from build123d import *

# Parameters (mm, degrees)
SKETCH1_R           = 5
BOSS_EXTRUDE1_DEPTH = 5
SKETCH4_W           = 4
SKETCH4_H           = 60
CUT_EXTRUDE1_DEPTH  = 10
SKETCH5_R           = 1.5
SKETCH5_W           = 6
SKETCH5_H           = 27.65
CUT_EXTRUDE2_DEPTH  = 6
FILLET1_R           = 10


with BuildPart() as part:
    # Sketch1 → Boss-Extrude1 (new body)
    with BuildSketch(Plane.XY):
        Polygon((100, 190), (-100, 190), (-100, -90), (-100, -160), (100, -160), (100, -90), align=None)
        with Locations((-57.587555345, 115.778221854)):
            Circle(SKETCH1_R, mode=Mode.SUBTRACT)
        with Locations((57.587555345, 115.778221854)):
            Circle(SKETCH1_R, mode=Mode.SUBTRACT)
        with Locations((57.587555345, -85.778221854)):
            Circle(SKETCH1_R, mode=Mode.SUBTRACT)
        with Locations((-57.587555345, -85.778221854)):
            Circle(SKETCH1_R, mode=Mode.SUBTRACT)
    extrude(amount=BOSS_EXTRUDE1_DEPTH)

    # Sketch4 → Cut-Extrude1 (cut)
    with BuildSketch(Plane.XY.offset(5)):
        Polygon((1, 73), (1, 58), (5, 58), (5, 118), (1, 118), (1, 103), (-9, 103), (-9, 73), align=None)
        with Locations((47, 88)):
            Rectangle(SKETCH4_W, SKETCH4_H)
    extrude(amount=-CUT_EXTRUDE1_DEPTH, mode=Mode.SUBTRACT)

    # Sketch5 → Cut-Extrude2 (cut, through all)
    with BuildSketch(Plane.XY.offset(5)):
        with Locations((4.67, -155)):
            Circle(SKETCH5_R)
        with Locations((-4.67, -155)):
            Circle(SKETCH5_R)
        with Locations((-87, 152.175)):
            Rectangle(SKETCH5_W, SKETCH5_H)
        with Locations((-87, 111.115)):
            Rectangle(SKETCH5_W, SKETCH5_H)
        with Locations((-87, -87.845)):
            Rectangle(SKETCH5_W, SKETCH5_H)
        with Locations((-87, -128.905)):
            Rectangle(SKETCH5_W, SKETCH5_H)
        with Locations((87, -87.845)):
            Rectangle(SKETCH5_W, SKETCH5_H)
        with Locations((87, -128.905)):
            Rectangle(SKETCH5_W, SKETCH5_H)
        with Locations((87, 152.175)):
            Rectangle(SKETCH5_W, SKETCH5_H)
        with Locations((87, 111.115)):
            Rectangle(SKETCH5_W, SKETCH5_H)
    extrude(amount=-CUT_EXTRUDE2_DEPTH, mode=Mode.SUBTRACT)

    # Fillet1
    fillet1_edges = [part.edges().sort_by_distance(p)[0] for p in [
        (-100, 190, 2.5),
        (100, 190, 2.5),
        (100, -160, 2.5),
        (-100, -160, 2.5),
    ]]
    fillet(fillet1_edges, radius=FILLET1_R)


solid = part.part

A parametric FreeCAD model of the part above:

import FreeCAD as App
import Part
import Sketcher

V = App.Vector
Q = App.Units.Quantity


def edges_at(feature, points):
    """Names of the edges that pass closest to the given points."""
    edges = feature.Shape.Edges
    near = lambda p: min(range(len(edges)), key=lambda i: edges[i].distToShape(Part.Vertex(*p))[0])
    return sorted({f"Edge{near(p) + 1}" for p in points})

doc = App.newDocument("Part")
body = doc.addObject("PartDesign::Body", "Body")

sketch1 = doc.addObject("Sketcher::SketchObject", "Sketch")
body.addObject(sketch1)
sketch1.AttachmentSupport = (doc.XY_Plane, [""])
sketch1.MapMode = "FlatFace"
sketch1.addGeometry(Part.LineSegment(V(100, 190, 0), V(-100, 190, 0)), False)
sketch1.addGeometry(Part.LineSegment(V(-100, 190, 0), V(-100, -160, 0)), False)
sketch1.addGeometry(Part.LineSegment(V(-100, -160, 0), V(100, -160, 0)), False)
sketch1.addGeometry(Part.LineSegment(V(100, -160, 0), V(100, 190, 0)), False)
sketch1.addGeometry(Part.Circle(V(-57.587555, -85.778222, 0), V(0, 0, 1), 5), False)
sketch1.addGeometry(Part.Circle(V(57.587555, -85.778222, 0), V(0, 0, 1), 5), False)
sketch1.addGeometry(Part.Circle(V(-57.587555, 115.778222, 0), V(0, 0, 1), 5), False)
sketch1.addGeometry(Part.Circle(V(57.587555, 115.778222, 0), V(0, 0, 1), 5), False)
sketch1.addConstraint(Sketcher.Constraint("Coincident", 0, 2, 1, 1))
sketch1.addConstraint(Sketcher.Constraint("Coincident", 1, 2, 2, 1))
sketch1.addConstraint(Sketcher.Constraint("Coincident", 2, 2, 3, 1))
sketch1.addConstraint(Sketcher.Constraint("Coincident", 3, 2, 0, 1))
sketch1.addConstraint(Sketcher.Constraint("Horizontal", 0))
sketch1.addConstraint(Sketcher.Constraint("Vertical", 1))
sketch1.addConstraint(Sketcher.Constraint("Horizontal", 2))
sketch1.addConstraint(Sketcher.Constraint("Vertical", 3))
sketch1.addConstraint(Sketcher.Constraint("Equal", 4, 5))
sketch1.addConstraint(Sketcher.Constraint("Equal", 5, 6))
sketch1.addConstraint(Sketcher.Constraint("Equal", 6, 7))
sketch1.addConstraint(Sketcher.Constraint("Symmetric", 4, 3, 5, 3, -2))
sketch1.addConstraint(Sketcher.Constraint("Symmetric", 6, 3, 7, 3, -2))
sketch1.addConstraint(Sketcher.Constraint("Vertical", 4, 3, 6, 3))
sketch1.addConstraint(Sketcher.Constraint("Diameter", 4, Q("10 mm")))
sketch1.addConstraint(Sketcher.Constraint("DistanceX", 0, 2, 0, 1, Q("200 mm")))
sketch1.addConstraint(Sketcher.Constraint("DistanceY", 1, 2, 1, 1, Q("350 mm")))
sketch1.addConstraint(Sketcher.Constraint("DistanceX", 0, 2, -1, 1, Q("100 mm")))
sketch1.addConstraint(Sketcher.Constraint("DistanceY", -1, 1, 0, 2, Q("190 mm")))
sketch1.addConstraint(Sketcher.Constraint("DistanceY", 4, 3, -1, 1, Q("85.778222 mm")))
sketch1.addConstraint(Sketcher.Constraint("DistanceY", -1, 1, 6, 3, Q("115.778222 mm")))
sketch1.addConstraint(Sketcher.Constraint("DistanceX", 4, 3, 5, 3, Q("115.175111 mm")))
pad1 = doc.addObject("PartDesign::Pad", "Pad")
body.addObject(pad1)
pad1.Profile = sketch1
pad1.Length = 5

sketch2 = doc.addObject("Sketcher::SketchObject", "Sketch001")
body.addObject(sketch2)
sketch2.AttachmentSupport = (doc.XY_Plane, [""])
sketch2.MapMode = "FlatFace"
sketch2.AttachmentOffset = App.Placement(V(0, 0, 5), App.Rotation())
sketch2.addGeometry(Part.LineSegment(V(1, 73, 0), V(1, 58, 0)), False)
sketch2.addGeometry(Part.LineSegment(V(1, 58, 0), V(5, 58, 0)), False)
sketch2.addGeometry(Part.LineSegment(V(5, 58, 0), V(5, 118, 0)), False)
sketch2.addGeometry(Part.LineSegment(V(5, 118, 0), V(1, 118, 0)), False)
sketch2.addGeometry(Part.LineSegment(V(1, 118, 0), V(1, 103, 0)), False)
sketch2.addGeometry(Part.LineSegment(V(1, 103, 0), V(-9, 103, 0)), False)
sketch2.addGeometry(Part.LineSegment(V(-9, 103, 0), V(-9, 73, 0)), False)
sketch2.addGeometry(Part.LineSegment(V(-9, 73, 0), V(1, 73, 0)), False)
sketch2.addGeometry(Part.LineSegment(V(45, 118, 0), V(45, 58, 0)), False)
sketch2.addGeometry(Part.LineSegment(V(45, 58, 0), V(49, 58, 0)), False)
sketch2.addGeometry(Part.LineSegment(V(49, 58, 0), V(49, 118, 0)), False)
sketch2.addGeometry(Part.LineSegment(V(49, 118, 0), V(45, 118, 0)), False)
sketch2.addConstraint(Sketcher.Constraint("Coincident", 0, 2, 1, 1))
sketch2.addConstraint(Sketcher.Constraint("Coincident", 1, 2, 2, 1))
sketch2.addConstraint(Sketcher.Constraint("Coincident", 2, 2, 3, 1))
sketch2.addConstraint(Sketcher.Constraint("Coincident", 3, 2, 4, 1))
sketch2.addConstraint(Sketcher.Constraint("Coincident", 4, 2, 5, 1))
sketch2.addConstraint(Sketcher.Constraint("Coincident", 5, 2, 6, 1))
sketch2.addConstraint(Sketcher.Constraint("Coincident", 6, 2, 7, 1))
sketch2.addConstraint(Sketcher.Constraint("Coincident", 7, 2, 0, 1))
sketch2.addConstraint(Sketcher.Constraint("Coincident", 8, 2, 9, 1))
sketch2.addConstraint(Sketcher.Constraint("Coincident", 9, 2, 10, 1))
sketch2.addConstraint(Sketcher.Constraint("Coincident", 10, 2, 11, 1))
sketch2.addConstraint(Sketcher.Constraint("Coincident", 11, 2, 8, 1))
sketch2.addConstraint(Sketcher.Constraint("Vertical", 0))
sketch2.addConstraint(Sketcher.Constraint("Horizontal", 1))
sketch2.addConstraint(Sketcher.Constraint("Vertical", 2))
sketch2.addConstraint(Sketcher.Constraint("Horizontal", 3))
sketch2.addConstraint(Sketcher.Constraint("Vertical", 4))
sketch2.addConstraint(Sketcher.Constraint("Horizontal", 5))
sketch2.addConstraint(Sketcher.Constraint("Vertical", 6))
sketch2.addConstraint(Sketcher.Constraint("Horizontal", 7))
sketch2.addConstraint(Sketcher.Constraint("Vertical", 8))
sketch2.addConstraint(Sketcher.Constraint("Horizontal", 9))
sketch2.addConstraint(Sketcher.Constraint("Vertical", 10))
sketch2.addConstraint(Sketcher.Constraint("Horizontal", 11))
sketch2.addConstraint(Sketcher.Constraint("Horizontal", 1, 2, 8, 2))
sketch2.addConstraint(Sketcher.Constraint("Horizontal", 3, 2, 10, 2))
sketch2.addConstraint(Sketcher.Constraint("Vertical", 0, 2, 3, 2))
sketch2.addConstraint(Sketcher.Constraint("Equal", 3, 9))
sketch2.addConstraint(Sketcher.Constraint("Equal", 0, 4))
sketch2.addConstraint(Sketcher.Constraint("DistanceX", 1, 1, 1, 2, Q("4 mm")))
sketch2.addConstraint(Sketcher.Constraint("DistanceX", 5, 2, 5, 1, Q("10 mm")))
sketch2.addConstraint(Sketcher.Constraint("DistanceY", 0, 2, 0, 1, Q("15 mm")))
sketch2.addConstraint(Sketcher.Constraint("DistanceY", 2, 1, 2, 2, Q("60 mm")))
sketch2.addConstraint(Sketcher.Constraint("DistanceX", -1, 1, 0, 2, Q("1 mm")))
sketch2.addConstraint(Sketcher.Constraint("DistanceY", -1, 1, 0, 2, Q("58 mm")))
sketch2.addConstraint(Sketcher.Constraint("DistanceX", -1, 1, 8, 2, Q("45 mm")))
pocket1 = doc.addObject("PartDesign::Pocket", "Pocket")
body.addObject(pocket1)
pocket1.Profile = sketch2
pocket1.Length = 10

sketch3 = doc.addObject("Sketcher::SketchObject", "Sketch002")
body.addObject(sketch3)
sketch3.AttachmentSupport = (doc.XY_Plane, [""])
sketch3.MapMode = "FlatFace"
sketch3.AttachmentOffset = App.Placement(V(0, 0, 5), App.Rotation())
sketch3.addGeometry(Part.Circle(V(4.67, -155, 0), V(0, 0, 1), 1.5), False)
sketch3.addGeometry(Part.Circle(V(-4.67, -155, 0), V(0, 0, 1), 1.5), False)
sketch3.addGeometry(Part.LineSegment(V(-90, 166, 0), V(-90, 138.35, 0)), False)
sketch3.addGeometry(Part.LineSegment(V(-90, 138.35, 0), V(-84, 138.35, 0)), False)
sketch3.addGeometry(Part.LineSegment(V(-84, 138.35, 0), V(-84, 166, 0)), False)
sketch3.addGeometry(Part.LineSegment(V(-84, 166, 0), V(-90, 166, 0)), False)
sketch3.addGeometry(Part.LineSegment(V(-90, 124.94, 0), V(-90, 97.29, 0)), False)
sketch3.addGeometry(Part.LineSegment(V(-90, 97.29, 0), V(-84, 97.29, 0)), False)
sketch3.addGeometry(Part.LineSegment(V(-84, 97.29, 0), V(-84, 124.94, 0)), False)
sketch3.addGeometry(Part.LineSegment(V(-84, 124.94, 0), V(-90, 124.94, 0)), False)
sketch3.addGeometry(Part.LineSegment(V(-90, -74.02, 0), V(-90, -101.67, 0)), False)
sketch3.addGeometry(Part.LineSegment(V(-90, -101.67, 0), V(-84, -101.67, 0)), False)
sketch3.addGeometry(Part.LineSegment(V(-84, -101.67, 0), V(-84, -74.02, 0)), False)
sketch3.addGeometry(Part.LineSegment(V(-84, -74.02, 0), V(-90, -74.02, 0)), False)
sketch3.addGeometry(Part.LineSegment(V(-90, -115.08, 0), V(-90, -142.73, 0)), False)
sketch3.addGeometry(Part.LineSegment(V(-90, -142.73, 0), V(-84, -142.73, 0)), False)
sketch3.addGeometry(Part.LineSegment(V(-84, -142.73, 0), V(-84, -115.08, 0)), False)
sketch3.addGeometry(Part.LineSegment(V(-84, -115.08, 0), V(-90, -115.08, 0)), False)
sketch3.addGeometry(Part.LineSegment(V(84, -74.02, 0), V(84, -101.67, 0)), False)
sketch3.addGeometry(Part.LineSegment(V(84, -101.67, 0), V(90, -101.67, 0)), False)
sketch3.addGeometry(Part.LineSegment(V(90, -101.67, 0), V(90, -74.02, 0)), False)
sketch3.addGeometry(Part.LineSegment(V(90, -74.02, 0), V(84, -74.02, 0)), False)
sketch3.addGeometry(Part.LineSegment(V(84, -115.08, 0), V(84, -142.73, 0)), False)
sketch3.addGeometry(Part.LineSegment(V(84, -142.73, 0), V(90, -142.73, 0)), False)
sketch3.addGeometry(Part.LineSegment(V(90, -142.73, 0), V(90, -115.08, 0)), False)
sketch3.addGeometry(Part.LineSegment(V(90, -115.08, 0), V(84, -115.08, 0)), False)
sketch3.addGeometry(Part.LineSegment(V(84, 166, 0), V(84, 138.35, 0)), False)
sketch3.addGeometry(Part.LineSegment(V(84, 138.35, 0), V(90, 138.35, 0)), False)
sketch3.addGeometry(Part.LineSegment(V(90, 138.35, 0), V(90, 166, 0)), False)
sketch3.addGeometry(Part.LineSegment(V(90, 166, 0), V(84, 166, 0)), False)
sketch3.addGeometry(Part.LineSegment(V(84, 124.94, 0), V(84, 97.29, 0)), False)
sketch3.addGeometry(Part.LineSegment(V(84, 97.29, 0), V(90, 97.29, 0)), False)
sketch3.addGeometry(Part.LineSegment(V(90, 97.29, 0), V(90, 124.94, 0)), False)
sketch3.addGeometry(Part.LineSegment(V(90, 124.94, 0), V(84, 124.94, 0)), False)
sketch3.addConstraint(Sketcher.Constraint("Coincident", 2, 2, 3, 1))
sketch3.addConstraint(Sketcher.Constraint("Coincident", 3, 2, 4, 1))
sketch3.addConstraint(Sketcher.Constraint("Coincident", 4, 2, 5, 1))
sketch3.addConstraint(Sketcher.Constraint("Coincident", 5, 2, 2, 1))
sketch3.addConstraint(Sketcher.Constraint("Coincident", 6, 2, 7, 1))
sketch3.addConstraint(Sketcher.Constraint("Coincident", 7, 2, 8, 1))
sketch3.addConstraint(Sketcher.Constraint("Coincident", 8, 2, 9, 1))
sketch3.addConstraint(Sketcher.Constraint("Coincident", 9, 2, 6, 1))
sketch3.addConstraint(Sketcher.Constraint("Coincident", 10, 2, 11, 1))
sketch3.addConstraint(Sketcher.Constraint("Coincident", 11, 2, 12, 1))
sketch3.addConstraint(Sketcher.Constraint("Coincident", 12, 2, 13, 1))
sketch3.addConstraint(Sketcher.Constraint("Coincident", 13, 2, 10, 1))
sketch3.addConstraint(Sketcher.Constraint("Coincident", 14, 2, 15, 1))
sketch3.addConstraint(Sketcher.Constraint("Coincident", 15, 2, 16, 1))
sketch3.addConstraint(Sketcher.Constraint("Coincident", 16, 2, 17, 1))
sketch3.addConstraint(Sketcher.Constraint("Coincident", 17, 2, 14, 1))
sketch3.addConstraint(Sketcher.Constraint("Coincident", 18, 2, 19, 1))
sketch3.addConstraint(Sketcher.Constraint("Coincident", 19, 2, 20, 1))
sketch3.addConstraint(Sketcher.Constraint("Coincident", 20, 2, 21, 1))
sketch3.addConstraint(Sketcher.Constraint("Coincident", 21, 2, 18, 1))
sketch3.addConstraint(Sketcher.Constraint("Coincident", 22, 2, 23, 1))
sketch3.addConstraint(Sketcher.Constraint("Coincident", 23, 2, 24, 1))
sketch3.addConstraint(Sketcher.Constraint("Coincident", 24, 2, 25, 1))
sketch3.addConstraint(Sketcher.Constraint("Coincident", 25, 2, 22, 1))
sketch3.addConstraint(Sketcher.Constraint("Coincident", 26, 2, 27, 1))
sketch3.addConstraint(Sketcher.Constraint("Coincident", 27, 2, 28, 1))
sketch3.addConstraint(Sketcher.Constraint("Coincident", 28, 2, 29, 1))
sketch3.addConstraint(Sketcher.Constraint("Coincident", 29, 2, 26, 1))
sketch3.addConstraint(Sketcher.Constraint("Coincident", 30, 2, 31, 1))
sketch3.addConstraint(Sketcher.Constraint("Coincident", 31, 2, 32, 1))
sketch3.addConstraint(Sketcher.Constraint("Coincident", 32, 2, 33, 1))
sketch3.addConstraint(Sketcher.Constraint("Coincident", 33, 2, 30, 1))
sketch3.addConstraint(Sketcher.Constraint("Vertical", 2))
sketch3.addConstraint(Sketcher.Constraint("Horizontal", 3))
sketch3.addConstraint(Sketcher.Constraint("Vertical", 4))
sketch3.addConstraint(Sketcher.Constraint("Horizontal", 5))
sketch3.addConstraint(Sketcher.Constraint("Vertical", 6))
sketch3.addConstraint(Sketcher.Constraint("Horizontal", 7))
sketch3.addConstraint(Sketcher.Constraint("Vertical", 8))
sketch3.addConstraint(Sketcher.Constraint("Horizontal", 9))
sketch3.addConstraint(Sketcher.Constraint("Vertical", 10))
sketch3.addConstraint(Sketcher.Constraint("Horizontal", 11))
sketch3.addConstraint(Sketcher.Constraint("Vertical", 12))
sketch3.addConstraint(Sketcher.Constraint("Horizontal", 13))
sketch3.addConstraint(Sketcher.Constraint("Vertical", 14))
sketch3.addConstraint(Sketcher.Constraint("Horizontal", 15))
sketch3.addConstraint(Sketcher.Constraint("Vertical", 16))
sketch3.addConstraint(Sketcher.Constraint("Horizontal", 17))
sketch3.addConstraint(Sketcher.Constraint("Vertical", 18))
sketch3.addConstraint(Sketcher.Constraint("Horizontal", 19))
sketch3.addConstraint(Sketcher.Constraint("Vertical", 20))
sketch3.addConstraint(Sketcher.Constraint("Horizontal", 21))
sketch3.addConstraint(Sketcher.Constraint("Vertical", 22))
sketch3.addConstraint(Sketcher.Constraint("Horizontal", 23))
sketch3.addConstraint(Sketcher.Constraint("Vertical", 24))
sketch3.addConstraint(Sketcher.Constraint("Horizontal", 25))
sketch3.addConstraint(Sketcher.Constraint("Vertical", 26))
sketch3.addConstraint(Sketcher.Constraint("Horizontal", 27))
sketch3.addConstraint(Sketcher.Constraint("Vertical", 28))
sketch3.addConstraint(Sketcher.Constraint("Horizontal", 29))
sketch3.addConstraint(Sketcher.Constraint("Vertical", 30))
sketch3.addConstraint(Sketcher.Constraint("Horizontal", 31))
sketch3.addConstraint(Sketcher.Constraint("Vertical", 32))
sketch3.addConstraint(Sketcher.Constraint("Horizontal", 33))
sketch3.addConstraint(Sketcher.Constraint("Equal", 0, 1))
sketch3.addConstraint(Sketcher.Constraint("Symmetric", 0, 3, 1, 3, -2))
sketch3.addConstraint(Sketcher.Constraint("Symmetric", 11, 2, 18, 2, -2))
sketch3.addConstraint(Sketcher.Constraint("Symmetric", 13, 2, 20, 2, -2))
sketch3.addConstraint(Sketcher.Constraint("Symmetric", 15, 2, 22, 2, -2))
sketch3.addConstraint(Sketcher.Constraint("Symmetric", 17, 2, 24, 2, -2))
sketch3.addConstraint(Sketcher.Constraint("Symmetric", 3, 2, 26, 2, -2))
sketch3.addConstraint(Sketcher.Constraint("Symmetric", 5, 2, 28, 2, -2))
sketch3.addConstraint(Sketcher.Constraint("Symmetric", 7, 2, 30, 2, -2))
sketch3.addConstraint(Sketcher.Constraint("Symmetric", 9, 2, 32, 2, -2))
sketch3.addConstraint(Sketcher.Constraint("Vertical", 5, 2, 6, 2))
sketch3.addConstraint(Sketcher.Constraint("Vertical", 4, 2, 7, 2))
sketch3.addConstraint(Sketcher.Constraint("Vertical", 9, 2, 10, 2))
sketch3.addConstraint(Sketcher.Constraint("Vertical", 8, 2, 11, 2))
sketch3.addConstraint(Sketcher.Constraint("Vertical", 13, 2, 14, 2))
sketch3.addConstraint(Sketcher.Constraint("Vertical", 12, 2, 15, 2))
sketch3.addConstraint(Sketcher.Constraint("Equal", 4, 6))
sketch3.addConstraint(Sketcher.Constraint("Equal", 8, 10))
sketch3.addConstraint(Sketcher.Constraint("Equal", 12, 14))
sketch3.addConstraint(Sketcher.Constraint("Diameter", 0, Q("3 mm")))
sketch3.addConstraint(Sketcher.Constraint("DistanceX", 3, 1, 3, 2, Q("6 mm")))
sketch3.addConstraint(Sketcher.Constraint("DistanceY", 0, 3, -1, 1, Q("155 mm")))
sketch3.addConstraint(Sketcher.Constraint("DistanceX", 2, 2, -1, 1, Q("90 mm")))
sketch3.addConstraint(Sketcher.Constraint("DistanceY", -1, 1, 4, 2, Q("166 mm")))
sketch3.addConstraint(Sketcher.Constraint("DistanceY", 2, 2, 2, 1, Q("27.65 mm")))
sketch3.addConstraint(Sketcher.Constraint("DistanceX", -1, 1, 0, 3, Q("4.67 mm")))
sketch3.addConstraint(Sketcher.Constraint("DistanceY", -1, 1, 6, 2, Q("97.29 mm")))
sketch3.addConstraint(Sketcher.Constraint("DistanceY", 10, 2, -1, 1, Q("101.67 mm")))
sketch3.addConstraint(Sketcher.Constraint("DistanceY", 14, 2, -1, 1, Q("142.73 mm")))
pocket2 = doc.addObject("PartDesign::Pocket", "Pocket001")
body.addObject(pocket2)
pocket2.Profile = sketch3
pocket2.Type = "ThroughAll"
doc.recompute()

fillet = doc.addObject("PartDesign::Fillet", "Fillet")
body.addObject(fillet)
fillet.Base = (pocket2, edges_at(pocket2, [
    (-100, 190, 2.5),
    (100, 190, 2.5),
    (100, -160, 2.5),
    (-100, -160, 2.5),
]))
fillet.Radius = 10

doc.recompute()
